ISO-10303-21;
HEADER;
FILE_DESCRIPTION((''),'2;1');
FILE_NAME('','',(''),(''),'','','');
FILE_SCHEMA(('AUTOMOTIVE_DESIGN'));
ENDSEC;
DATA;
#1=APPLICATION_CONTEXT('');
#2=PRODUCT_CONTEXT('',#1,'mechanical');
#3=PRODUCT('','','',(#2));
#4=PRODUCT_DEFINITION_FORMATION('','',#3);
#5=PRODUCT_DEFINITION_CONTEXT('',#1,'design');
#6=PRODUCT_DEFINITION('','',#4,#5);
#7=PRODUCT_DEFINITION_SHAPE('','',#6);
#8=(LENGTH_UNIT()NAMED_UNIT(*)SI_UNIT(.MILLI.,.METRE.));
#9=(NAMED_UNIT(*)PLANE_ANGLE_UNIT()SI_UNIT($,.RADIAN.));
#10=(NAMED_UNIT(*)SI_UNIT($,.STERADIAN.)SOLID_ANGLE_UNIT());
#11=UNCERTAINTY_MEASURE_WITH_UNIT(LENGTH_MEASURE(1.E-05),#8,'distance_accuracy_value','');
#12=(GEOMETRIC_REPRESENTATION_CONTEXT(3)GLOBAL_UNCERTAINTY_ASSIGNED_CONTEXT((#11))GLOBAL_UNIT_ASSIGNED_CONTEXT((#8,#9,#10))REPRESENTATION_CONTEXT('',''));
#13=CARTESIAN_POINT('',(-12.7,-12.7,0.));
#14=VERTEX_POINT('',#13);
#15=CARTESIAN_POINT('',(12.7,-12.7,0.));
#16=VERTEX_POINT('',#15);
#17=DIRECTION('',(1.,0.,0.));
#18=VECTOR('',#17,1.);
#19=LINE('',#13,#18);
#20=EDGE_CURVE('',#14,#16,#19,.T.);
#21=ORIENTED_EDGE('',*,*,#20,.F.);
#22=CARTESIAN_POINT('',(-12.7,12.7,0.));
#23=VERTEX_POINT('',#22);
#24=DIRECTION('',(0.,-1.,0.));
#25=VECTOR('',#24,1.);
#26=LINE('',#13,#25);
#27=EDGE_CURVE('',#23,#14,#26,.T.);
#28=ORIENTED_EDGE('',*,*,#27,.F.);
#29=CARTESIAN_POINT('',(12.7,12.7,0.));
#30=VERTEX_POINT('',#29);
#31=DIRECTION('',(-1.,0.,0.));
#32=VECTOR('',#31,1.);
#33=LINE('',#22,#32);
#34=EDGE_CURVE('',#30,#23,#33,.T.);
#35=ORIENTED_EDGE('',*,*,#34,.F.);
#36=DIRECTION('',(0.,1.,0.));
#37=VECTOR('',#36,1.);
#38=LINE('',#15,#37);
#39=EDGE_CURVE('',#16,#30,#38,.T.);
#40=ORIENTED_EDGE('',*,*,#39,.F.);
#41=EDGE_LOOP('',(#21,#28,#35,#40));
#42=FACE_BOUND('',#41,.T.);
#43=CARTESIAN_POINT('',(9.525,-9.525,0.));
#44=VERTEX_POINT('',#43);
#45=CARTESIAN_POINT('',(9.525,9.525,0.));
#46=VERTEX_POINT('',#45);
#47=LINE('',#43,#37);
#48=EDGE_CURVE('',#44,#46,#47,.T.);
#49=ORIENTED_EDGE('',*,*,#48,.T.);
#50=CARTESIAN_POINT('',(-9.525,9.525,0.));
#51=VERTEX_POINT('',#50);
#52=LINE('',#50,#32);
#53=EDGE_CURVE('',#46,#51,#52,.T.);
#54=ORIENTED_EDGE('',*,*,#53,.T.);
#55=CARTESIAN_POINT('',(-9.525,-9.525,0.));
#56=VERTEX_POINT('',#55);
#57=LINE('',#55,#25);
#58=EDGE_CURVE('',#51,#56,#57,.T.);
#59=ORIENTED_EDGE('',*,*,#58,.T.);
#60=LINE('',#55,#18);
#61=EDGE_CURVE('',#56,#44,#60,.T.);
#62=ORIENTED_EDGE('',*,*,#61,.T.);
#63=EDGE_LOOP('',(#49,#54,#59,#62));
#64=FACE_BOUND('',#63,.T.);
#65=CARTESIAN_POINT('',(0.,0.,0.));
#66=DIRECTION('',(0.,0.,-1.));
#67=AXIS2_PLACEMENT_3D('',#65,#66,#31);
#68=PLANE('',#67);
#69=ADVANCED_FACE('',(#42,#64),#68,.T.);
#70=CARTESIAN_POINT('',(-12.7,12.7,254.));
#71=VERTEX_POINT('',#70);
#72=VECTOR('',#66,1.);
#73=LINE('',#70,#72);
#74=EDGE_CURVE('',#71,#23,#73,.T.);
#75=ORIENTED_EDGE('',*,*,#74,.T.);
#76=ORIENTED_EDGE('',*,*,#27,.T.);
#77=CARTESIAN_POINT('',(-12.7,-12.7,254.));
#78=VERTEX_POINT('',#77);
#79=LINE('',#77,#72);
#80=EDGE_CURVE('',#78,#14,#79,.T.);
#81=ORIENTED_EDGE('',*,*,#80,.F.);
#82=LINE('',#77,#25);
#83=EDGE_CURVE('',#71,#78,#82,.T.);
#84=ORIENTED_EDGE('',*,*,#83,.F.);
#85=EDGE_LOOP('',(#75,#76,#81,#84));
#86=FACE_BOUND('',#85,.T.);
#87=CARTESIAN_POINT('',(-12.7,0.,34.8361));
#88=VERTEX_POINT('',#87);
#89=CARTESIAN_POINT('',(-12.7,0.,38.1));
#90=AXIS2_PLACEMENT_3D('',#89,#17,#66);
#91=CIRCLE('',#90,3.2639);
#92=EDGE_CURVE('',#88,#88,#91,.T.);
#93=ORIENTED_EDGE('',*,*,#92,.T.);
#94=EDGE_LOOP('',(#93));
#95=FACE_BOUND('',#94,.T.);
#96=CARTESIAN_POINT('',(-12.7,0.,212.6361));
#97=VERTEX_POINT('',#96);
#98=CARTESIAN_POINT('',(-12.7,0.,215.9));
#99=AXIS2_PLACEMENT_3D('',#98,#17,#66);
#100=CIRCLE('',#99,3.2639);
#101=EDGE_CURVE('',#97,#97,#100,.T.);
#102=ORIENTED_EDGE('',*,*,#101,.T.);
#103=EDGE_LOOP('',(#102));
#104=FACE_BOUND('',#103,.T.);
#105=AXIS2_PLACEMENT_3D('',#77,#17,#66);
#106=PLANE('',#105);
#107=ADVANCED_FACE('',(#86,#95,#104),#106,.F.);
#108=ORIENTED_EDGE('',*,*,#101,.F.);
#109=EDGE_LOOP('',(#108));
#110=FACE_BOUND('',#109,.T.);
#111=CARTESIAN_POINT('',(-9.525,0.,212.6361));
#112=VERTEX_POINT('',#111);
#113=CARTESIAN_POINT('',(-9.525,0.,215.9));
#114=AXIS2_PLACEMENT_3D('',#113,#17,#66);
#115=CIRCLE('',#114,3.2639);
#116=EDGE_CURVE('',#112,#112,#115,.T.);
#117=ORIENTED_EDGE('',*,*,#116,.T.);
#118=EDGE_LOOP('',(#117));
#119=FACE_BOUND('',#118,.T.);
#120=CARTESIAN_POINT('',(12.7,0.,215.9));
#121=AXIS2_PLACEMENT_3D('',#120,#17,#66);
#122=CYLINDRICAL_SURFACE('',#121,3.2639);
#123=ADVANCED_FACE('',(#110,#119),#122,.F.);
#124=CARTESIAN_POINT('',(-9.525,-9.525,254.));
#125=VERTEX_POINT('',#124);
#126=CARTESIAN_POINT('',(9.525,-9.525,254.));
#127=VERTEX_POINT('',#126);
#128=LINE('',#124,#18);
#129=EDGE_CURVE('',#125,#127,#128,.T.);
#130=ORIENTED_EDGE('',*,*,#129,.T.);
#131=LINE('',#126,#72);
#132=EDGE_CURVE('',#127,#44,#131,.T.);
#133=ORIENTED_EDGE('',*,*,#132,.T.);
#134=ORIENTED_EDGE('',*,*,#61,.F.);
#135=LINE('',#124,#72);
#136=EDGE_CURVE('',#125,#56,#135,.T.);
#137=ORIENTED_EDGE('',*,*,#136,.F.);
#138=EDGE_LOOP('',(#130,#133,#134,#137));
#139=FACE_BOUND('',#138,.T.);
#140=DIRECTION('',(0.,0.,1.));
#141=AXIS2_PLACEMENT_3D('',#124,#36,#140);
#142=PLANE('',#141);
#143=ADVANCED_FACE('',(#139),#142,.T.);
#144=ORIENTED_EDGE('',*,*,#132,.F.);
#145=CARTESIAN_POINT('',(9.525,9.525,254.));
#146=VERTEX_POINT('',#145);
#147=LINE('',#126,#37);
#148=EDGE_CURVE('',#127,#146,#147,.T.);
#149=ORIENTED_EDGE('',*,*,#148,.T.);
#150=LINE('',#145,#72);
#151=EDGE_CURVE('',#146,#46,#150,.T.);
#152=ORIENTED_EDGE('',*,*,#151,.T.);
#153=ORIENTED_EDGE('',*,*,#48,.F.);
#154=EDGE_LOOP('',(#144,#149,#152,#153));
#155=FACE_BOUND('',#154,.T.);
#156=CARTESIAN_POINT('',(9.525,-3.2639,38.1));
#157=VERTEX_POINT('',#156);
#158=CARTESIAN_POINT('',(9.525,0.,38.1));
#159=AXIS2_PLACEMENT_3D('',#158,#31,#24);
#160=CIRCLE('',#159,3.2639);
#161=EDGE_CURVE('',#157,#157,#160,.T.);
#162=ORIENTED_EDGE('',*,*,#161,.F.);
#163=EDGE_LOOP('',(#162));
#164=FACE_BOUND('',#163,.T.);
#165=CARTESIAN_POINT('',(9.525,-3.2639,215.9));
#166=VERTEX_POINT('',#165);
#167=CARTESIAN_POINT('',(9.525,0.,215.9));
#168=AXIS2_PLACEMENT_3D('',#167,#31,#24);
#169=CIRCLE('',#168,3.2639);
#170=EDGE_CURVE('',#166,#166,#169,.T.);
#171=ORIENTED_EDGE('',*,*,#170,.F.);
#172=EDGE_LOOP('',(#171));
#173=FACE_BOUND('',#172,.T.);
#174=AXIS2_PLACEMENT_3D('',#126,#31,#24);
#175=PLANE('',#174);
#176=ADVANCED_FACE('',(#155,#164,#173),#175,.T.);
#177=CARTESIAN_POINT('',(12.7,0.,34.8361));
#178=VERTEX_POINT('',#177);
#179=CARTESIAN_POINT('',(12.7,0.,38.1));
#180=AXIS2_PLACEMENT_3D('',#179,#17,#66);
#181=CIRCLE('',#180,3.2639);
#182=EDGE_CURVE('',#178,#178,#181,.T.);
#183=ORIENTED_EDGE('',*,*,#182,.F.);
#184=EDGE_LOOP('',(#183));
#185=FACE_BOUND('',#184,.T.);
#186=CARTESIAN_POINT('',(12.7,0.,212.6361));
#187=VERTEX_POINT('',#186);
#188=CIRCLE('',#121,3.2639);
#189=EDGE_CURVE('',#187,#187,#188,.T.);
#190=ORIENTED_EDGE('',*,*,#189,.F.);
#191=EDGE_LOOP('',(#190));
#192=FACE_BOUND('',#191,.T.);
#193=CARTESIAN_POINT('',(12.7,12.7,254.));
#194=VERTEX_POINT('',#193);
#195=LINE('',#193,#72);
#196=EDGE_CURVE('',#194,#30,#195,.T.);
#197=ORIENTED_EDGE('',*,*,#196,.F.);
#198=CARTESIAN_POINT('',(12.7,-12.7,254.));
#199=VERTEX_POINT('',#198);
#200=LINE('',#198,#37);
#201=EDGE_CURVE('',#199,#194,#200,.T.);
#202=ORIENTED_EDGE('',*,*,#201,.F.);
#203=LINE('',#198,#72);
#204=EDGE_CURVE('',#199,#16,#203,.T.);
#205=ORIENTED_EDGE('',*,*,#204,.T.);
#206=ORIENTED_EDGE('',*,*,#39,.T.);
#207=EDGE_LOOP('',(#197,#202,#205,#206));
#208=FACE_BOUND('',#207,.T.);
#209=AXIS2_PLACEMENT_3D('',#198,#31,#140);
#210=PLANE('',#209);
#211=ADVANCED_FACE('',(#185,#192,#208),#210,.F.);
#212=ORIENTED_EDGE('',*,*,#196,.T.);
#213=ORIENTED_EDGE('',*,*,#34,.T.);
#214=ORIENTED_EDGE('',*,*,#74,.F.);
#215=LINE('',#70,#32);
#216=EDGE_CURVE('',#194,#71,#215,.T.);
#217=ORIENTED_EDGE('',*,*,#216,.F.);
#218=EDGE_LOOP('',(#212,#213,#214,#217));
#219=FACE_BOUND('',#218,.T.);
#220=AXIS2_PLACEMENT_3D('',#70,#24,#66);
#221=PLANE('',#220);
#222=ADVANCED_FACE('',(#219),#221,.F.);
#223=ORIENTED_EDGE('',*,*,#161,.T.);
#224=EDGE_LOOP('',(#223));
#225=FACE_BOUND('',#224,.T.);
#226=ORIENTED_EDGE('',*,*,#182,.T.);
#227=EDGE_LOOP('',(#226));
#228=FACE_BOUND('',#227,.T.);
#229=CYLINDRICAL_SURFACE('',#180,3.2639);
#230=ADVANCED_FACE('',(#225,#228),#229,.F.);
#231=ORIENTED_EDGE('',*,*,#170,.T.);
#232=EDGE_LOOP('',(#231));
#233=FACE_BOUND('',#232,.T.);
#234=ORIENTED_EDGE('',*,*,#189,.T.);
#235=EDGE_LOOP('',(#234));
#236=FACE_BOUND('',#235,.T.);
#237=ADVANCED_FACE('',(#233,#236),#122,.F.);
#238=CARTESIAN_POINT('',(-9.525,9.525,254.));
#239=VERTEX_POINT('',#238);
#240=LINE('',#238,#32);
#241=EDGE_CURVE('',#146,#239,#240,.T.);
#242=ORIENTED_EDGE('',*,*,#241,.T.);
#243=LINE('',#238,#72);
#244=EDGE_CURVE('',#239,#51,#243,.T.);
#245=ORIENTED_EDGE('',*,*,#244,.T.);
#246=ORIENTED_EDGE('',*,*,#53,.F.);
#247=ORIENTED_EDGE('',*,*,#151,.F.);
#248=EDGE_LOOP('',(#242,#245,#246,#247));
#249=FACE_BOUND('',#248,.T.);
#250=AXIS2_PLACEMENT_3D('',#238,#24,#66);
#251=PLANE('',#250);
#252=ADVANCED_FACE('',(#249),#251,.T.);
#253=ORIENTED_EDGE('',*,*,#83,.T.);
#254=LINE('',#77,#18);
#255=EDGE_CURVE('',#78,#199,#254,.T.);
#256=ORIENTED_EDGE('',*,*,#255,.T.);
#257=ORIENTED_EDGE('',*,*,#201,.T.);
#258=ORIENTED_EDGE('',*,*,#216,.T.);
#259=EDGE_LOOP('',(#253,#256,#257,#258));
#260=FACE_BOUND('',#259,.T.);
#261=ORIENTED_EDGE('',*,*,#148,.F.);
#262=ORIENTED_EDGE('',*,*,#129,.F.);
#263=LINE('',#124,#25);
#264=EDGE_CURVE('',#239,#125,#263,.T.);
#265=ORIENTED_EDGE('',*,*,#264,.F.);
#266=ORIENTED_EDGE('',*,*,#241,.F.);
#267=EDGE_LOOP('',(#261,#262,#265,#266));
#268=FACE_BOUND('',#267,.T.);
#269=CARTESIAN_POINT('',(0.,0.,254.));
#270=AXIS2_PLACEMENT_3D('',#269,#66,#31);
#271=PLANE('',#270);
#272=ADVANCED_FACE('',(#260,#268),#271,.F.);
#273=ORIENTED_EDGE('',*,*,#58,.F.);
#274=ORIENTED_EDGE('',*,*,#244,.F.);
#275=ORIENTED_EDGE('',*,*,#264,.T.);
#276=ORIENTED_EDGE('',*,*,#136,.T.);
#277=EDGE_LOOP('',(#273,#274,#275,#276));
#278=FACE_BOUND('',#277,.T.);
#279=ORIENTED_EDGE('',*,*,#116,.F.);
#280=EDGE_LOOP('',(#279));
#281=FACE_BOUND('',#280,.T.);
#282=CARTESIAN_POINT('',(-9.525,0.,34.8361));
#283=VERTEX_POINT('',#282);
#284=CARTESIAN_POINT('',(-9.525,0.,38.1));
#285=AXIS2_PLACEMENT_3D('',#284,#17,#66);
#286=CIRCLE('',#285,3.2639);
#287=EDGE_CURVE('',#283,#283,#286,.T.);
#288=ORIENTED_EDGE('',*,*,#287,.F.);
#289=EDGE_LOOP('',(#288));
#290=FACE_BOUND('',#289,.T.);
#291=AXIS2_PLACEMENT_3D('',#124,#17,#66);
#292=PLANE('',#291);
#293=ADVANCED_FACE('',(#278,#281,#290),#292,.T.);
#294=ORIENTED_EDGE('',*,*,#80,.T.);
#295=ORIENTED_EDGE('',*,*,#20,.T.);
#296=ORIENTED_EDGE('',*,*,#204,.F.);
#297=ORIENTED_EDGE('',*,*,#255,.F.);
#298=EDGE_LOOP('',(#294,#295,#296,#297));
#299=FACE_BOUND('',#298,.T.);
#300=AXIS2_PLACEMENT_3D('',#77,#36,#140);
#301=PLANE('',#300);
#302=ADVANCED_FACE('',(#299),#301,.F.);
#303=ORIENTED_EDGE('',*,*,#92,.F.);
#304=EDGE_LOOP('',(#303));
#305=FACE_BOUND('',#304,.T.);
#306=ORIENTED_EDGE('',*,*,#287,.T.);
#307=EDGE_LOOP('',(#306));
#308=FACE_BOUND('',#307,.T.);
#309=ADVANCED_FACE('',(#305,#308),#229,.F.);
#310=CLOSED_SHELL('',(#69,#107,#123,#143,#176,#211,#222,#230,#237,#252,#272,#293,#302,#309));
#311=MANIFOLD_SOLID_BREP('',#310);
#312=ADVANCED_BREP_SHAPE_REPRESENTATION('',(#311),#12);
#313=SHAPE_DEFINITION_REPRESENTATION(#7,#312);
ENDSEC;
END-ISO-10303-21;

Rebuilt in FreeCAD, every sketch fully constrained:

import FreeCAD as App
import Part
import Sketcher
from FreeCAD import Vector
Q = App.Units.Quantity

doc = App.newDocument("Part")
params = doc.addObject("Spreadsheet::Sheet", "Params")
for row, (alias, value) in enumerate([
    ("sketch1_width", "1 in"),
    ("sketch1_width2", "0.75 in"),
    ("pad1_length", "10 in"),
    ("sketch2_diameter", "0.257 in"),
    ("hole_diameter", "0.257 in"),
], start=1):
    params.set(f"A{row}", alias)
    params.set(f"B{row}", "=" + value)
    params.setAlias(f"B{row}", alias)

body = doc.addObject("PartDesign::Body", "Body")

sketch1 = body.newObject("Sketcher::SketchObject", "Sketch")
sketch1.AttachmentSupport = (doc.getObject("XY_Plane"), [""])
sketch1.MapMode = "FlatFace"
sketch1.addGeometry(Part.LineSegment(Vector(-13, 13, 0), Vector(-13, -13, 0)), False)
sketch1.addGeometry(Part.LineSegment(Vector(-13, -13, 0), Vector(13, -13, 0)), False)
sketch1.addGeometry(Part.LineSegment(Vector(13, -13, 0), Vector(13, 13, 0)), False)
sketch1.addGeometry(Part.LineSegment(Vector(13, 13, 0), Vector(-13, 13, 0)), False)
sketch1.addGeometry(Part.LineSegment(Vector(10, -10, 0), Vector(-10, -10, 0)), False)
sketch1.addGeometry(Part.LineSegment(Vector(-10, -10, 0), Vector(-10, 10, 0)), False)
sketch1.addGeometry(Part.LineSegment(Vector(-10, 10, 0), Vector(10, 10, 0)), False)
sketch1.addGeometry(Part.LineSegment(Vector(10, 10, 0), Vector(10, -10, 0)), False)
sketch1.addConstraint(Sketcher.Constraint("Coincident", 0, 2, 1, 1))
sketch1.addConstraint(Sketcher.Constraint("Coincident", 1, 2, 2, 1))
sketch1.addConstraint(Sketcher.Constraint("Coincident", 2, 2, 3, 1))
sketch1.addConstraint(Sketcher.Constraint("Coincident", 3, 2, 0, 1))
sketch1.addConstraint(Sketcher.Constraint("Coincident", 4, 2, 5, 1))
sketch1.addConstraint(Sketcher.Constraint("Coincident", 5, 2, 6, 1))
sketch1.addConstraint(Sketcher.Constraint("Coincident", 6, 2, 7, 1))
sketch1.addConstraint(Sketcher.Constraint("Coincident", 7, 2, 4, 1))
sketch1.addConstraint(Sketcher.Constraint("Vertical", 0))
sketch1.addConstraint(Sketcher.Constraint("Horizontal", 1))
sketch1.addConstraint(Sketcher.Constraint("Vertical", 2))
sketch1.addConstraint(Sketcher.Constraint("Horizontal", 3))
sketch1.addConstraint(Sketcher.Constraint("Horizontal", 4))
sketch1.addConstraint(Sketcher.Constraint("Vertical", 5))
sketch1.addConstraint(Sketcher.Constraint("Horizontal", 6))
sketch1.addConstraint(Sketcher.Constraint("Vertical", 7))
sketch1.addConstraint(Sketcher.Constraint("Symmetric", 0, 2, 2, 2, -1, 1))
sketch1.addConstraint(Sketcher.Constraint("Symmetric", 4, 2, 6, 2, -1, 1))
sketch1.addConstraint(Sketcher.Constraint("Equal", 3, 0))
sketch1.addConstraint(Sketcher.Constraint("Equal", 6, 5))
sketch1.addConstraint(Sketcher.Constraint("DistanceX", 1, 1, 1, 2, Q("1 in")))
sketch1.addConstraint(Sketcher.Constraint("DistanceX", 4, 2, 4, 1, Q("0.75 in")))
sketch1.setExpression("Constraints[20]", "Params.sketch1_width")
sketch1.setExpression("Constraints[21]", "Params.sketch1_width2")
pad1 = body.newObject("PartDesign::Pad", "Pad")
pad1.Profile = sketch1
pad1.setExpression("Length", "Params.pad1_length")

sketch2 = body.newObject("Sketcher::SketchObject", "Sketch001")
sketch2.AttachmentSupport = (doc.getObject("YZ_Plane"), [""])
sketch2.MapMode = "FlatFace"
sketch2.AttachmentOffset = App.Placement(Vector(0, 0, 0.5 * 25.4), App.Rotation())
sketch2.addGeometry(Part.Circle(Vector(0, 215.9, 0), Vector(0, 0, 1), 3.3), False)
sketch2.addGeometry(Part.Circle(Vector(0, 38.1, 0), Vector(0, 0, 1), 3.3), False)
sketch2.addConstraint(Sketcher.Constraint("Equal", 0, 1))
sketch2.addConstraint(Sketcher.Constraint("PointOnObject", 0, 3, -2))
sketch2.addConstraint(Sketcher.Constraint("PointOnObject", 1, 3, -2))
sketch2.addConstraint(Sketcher.Constraint("Diameter", 0, Q("0.257 in")))
sketch2.addConstraint(Sketcher.Constraint("DistanceY", 1, 3, 0, 3, Q("7 in")))
sketch2.addConstraint(Sketcher.Constraint("DistanceY", -1, 1, 0, 3, Q("8.5 in")))
sketch2.setExpression("Constraints[3]", "Params.sketch2_diameter")
doc.recompute()
hole = body.newObject("PartDesign::Hole", "Hole")
hole.Profile = sketch2
hole.ThreadType = "None"
hole.setExpression("Diameter", "Params.hole_diameter")
hole.DepthType = "ThroughAll"

doc.recompute()
